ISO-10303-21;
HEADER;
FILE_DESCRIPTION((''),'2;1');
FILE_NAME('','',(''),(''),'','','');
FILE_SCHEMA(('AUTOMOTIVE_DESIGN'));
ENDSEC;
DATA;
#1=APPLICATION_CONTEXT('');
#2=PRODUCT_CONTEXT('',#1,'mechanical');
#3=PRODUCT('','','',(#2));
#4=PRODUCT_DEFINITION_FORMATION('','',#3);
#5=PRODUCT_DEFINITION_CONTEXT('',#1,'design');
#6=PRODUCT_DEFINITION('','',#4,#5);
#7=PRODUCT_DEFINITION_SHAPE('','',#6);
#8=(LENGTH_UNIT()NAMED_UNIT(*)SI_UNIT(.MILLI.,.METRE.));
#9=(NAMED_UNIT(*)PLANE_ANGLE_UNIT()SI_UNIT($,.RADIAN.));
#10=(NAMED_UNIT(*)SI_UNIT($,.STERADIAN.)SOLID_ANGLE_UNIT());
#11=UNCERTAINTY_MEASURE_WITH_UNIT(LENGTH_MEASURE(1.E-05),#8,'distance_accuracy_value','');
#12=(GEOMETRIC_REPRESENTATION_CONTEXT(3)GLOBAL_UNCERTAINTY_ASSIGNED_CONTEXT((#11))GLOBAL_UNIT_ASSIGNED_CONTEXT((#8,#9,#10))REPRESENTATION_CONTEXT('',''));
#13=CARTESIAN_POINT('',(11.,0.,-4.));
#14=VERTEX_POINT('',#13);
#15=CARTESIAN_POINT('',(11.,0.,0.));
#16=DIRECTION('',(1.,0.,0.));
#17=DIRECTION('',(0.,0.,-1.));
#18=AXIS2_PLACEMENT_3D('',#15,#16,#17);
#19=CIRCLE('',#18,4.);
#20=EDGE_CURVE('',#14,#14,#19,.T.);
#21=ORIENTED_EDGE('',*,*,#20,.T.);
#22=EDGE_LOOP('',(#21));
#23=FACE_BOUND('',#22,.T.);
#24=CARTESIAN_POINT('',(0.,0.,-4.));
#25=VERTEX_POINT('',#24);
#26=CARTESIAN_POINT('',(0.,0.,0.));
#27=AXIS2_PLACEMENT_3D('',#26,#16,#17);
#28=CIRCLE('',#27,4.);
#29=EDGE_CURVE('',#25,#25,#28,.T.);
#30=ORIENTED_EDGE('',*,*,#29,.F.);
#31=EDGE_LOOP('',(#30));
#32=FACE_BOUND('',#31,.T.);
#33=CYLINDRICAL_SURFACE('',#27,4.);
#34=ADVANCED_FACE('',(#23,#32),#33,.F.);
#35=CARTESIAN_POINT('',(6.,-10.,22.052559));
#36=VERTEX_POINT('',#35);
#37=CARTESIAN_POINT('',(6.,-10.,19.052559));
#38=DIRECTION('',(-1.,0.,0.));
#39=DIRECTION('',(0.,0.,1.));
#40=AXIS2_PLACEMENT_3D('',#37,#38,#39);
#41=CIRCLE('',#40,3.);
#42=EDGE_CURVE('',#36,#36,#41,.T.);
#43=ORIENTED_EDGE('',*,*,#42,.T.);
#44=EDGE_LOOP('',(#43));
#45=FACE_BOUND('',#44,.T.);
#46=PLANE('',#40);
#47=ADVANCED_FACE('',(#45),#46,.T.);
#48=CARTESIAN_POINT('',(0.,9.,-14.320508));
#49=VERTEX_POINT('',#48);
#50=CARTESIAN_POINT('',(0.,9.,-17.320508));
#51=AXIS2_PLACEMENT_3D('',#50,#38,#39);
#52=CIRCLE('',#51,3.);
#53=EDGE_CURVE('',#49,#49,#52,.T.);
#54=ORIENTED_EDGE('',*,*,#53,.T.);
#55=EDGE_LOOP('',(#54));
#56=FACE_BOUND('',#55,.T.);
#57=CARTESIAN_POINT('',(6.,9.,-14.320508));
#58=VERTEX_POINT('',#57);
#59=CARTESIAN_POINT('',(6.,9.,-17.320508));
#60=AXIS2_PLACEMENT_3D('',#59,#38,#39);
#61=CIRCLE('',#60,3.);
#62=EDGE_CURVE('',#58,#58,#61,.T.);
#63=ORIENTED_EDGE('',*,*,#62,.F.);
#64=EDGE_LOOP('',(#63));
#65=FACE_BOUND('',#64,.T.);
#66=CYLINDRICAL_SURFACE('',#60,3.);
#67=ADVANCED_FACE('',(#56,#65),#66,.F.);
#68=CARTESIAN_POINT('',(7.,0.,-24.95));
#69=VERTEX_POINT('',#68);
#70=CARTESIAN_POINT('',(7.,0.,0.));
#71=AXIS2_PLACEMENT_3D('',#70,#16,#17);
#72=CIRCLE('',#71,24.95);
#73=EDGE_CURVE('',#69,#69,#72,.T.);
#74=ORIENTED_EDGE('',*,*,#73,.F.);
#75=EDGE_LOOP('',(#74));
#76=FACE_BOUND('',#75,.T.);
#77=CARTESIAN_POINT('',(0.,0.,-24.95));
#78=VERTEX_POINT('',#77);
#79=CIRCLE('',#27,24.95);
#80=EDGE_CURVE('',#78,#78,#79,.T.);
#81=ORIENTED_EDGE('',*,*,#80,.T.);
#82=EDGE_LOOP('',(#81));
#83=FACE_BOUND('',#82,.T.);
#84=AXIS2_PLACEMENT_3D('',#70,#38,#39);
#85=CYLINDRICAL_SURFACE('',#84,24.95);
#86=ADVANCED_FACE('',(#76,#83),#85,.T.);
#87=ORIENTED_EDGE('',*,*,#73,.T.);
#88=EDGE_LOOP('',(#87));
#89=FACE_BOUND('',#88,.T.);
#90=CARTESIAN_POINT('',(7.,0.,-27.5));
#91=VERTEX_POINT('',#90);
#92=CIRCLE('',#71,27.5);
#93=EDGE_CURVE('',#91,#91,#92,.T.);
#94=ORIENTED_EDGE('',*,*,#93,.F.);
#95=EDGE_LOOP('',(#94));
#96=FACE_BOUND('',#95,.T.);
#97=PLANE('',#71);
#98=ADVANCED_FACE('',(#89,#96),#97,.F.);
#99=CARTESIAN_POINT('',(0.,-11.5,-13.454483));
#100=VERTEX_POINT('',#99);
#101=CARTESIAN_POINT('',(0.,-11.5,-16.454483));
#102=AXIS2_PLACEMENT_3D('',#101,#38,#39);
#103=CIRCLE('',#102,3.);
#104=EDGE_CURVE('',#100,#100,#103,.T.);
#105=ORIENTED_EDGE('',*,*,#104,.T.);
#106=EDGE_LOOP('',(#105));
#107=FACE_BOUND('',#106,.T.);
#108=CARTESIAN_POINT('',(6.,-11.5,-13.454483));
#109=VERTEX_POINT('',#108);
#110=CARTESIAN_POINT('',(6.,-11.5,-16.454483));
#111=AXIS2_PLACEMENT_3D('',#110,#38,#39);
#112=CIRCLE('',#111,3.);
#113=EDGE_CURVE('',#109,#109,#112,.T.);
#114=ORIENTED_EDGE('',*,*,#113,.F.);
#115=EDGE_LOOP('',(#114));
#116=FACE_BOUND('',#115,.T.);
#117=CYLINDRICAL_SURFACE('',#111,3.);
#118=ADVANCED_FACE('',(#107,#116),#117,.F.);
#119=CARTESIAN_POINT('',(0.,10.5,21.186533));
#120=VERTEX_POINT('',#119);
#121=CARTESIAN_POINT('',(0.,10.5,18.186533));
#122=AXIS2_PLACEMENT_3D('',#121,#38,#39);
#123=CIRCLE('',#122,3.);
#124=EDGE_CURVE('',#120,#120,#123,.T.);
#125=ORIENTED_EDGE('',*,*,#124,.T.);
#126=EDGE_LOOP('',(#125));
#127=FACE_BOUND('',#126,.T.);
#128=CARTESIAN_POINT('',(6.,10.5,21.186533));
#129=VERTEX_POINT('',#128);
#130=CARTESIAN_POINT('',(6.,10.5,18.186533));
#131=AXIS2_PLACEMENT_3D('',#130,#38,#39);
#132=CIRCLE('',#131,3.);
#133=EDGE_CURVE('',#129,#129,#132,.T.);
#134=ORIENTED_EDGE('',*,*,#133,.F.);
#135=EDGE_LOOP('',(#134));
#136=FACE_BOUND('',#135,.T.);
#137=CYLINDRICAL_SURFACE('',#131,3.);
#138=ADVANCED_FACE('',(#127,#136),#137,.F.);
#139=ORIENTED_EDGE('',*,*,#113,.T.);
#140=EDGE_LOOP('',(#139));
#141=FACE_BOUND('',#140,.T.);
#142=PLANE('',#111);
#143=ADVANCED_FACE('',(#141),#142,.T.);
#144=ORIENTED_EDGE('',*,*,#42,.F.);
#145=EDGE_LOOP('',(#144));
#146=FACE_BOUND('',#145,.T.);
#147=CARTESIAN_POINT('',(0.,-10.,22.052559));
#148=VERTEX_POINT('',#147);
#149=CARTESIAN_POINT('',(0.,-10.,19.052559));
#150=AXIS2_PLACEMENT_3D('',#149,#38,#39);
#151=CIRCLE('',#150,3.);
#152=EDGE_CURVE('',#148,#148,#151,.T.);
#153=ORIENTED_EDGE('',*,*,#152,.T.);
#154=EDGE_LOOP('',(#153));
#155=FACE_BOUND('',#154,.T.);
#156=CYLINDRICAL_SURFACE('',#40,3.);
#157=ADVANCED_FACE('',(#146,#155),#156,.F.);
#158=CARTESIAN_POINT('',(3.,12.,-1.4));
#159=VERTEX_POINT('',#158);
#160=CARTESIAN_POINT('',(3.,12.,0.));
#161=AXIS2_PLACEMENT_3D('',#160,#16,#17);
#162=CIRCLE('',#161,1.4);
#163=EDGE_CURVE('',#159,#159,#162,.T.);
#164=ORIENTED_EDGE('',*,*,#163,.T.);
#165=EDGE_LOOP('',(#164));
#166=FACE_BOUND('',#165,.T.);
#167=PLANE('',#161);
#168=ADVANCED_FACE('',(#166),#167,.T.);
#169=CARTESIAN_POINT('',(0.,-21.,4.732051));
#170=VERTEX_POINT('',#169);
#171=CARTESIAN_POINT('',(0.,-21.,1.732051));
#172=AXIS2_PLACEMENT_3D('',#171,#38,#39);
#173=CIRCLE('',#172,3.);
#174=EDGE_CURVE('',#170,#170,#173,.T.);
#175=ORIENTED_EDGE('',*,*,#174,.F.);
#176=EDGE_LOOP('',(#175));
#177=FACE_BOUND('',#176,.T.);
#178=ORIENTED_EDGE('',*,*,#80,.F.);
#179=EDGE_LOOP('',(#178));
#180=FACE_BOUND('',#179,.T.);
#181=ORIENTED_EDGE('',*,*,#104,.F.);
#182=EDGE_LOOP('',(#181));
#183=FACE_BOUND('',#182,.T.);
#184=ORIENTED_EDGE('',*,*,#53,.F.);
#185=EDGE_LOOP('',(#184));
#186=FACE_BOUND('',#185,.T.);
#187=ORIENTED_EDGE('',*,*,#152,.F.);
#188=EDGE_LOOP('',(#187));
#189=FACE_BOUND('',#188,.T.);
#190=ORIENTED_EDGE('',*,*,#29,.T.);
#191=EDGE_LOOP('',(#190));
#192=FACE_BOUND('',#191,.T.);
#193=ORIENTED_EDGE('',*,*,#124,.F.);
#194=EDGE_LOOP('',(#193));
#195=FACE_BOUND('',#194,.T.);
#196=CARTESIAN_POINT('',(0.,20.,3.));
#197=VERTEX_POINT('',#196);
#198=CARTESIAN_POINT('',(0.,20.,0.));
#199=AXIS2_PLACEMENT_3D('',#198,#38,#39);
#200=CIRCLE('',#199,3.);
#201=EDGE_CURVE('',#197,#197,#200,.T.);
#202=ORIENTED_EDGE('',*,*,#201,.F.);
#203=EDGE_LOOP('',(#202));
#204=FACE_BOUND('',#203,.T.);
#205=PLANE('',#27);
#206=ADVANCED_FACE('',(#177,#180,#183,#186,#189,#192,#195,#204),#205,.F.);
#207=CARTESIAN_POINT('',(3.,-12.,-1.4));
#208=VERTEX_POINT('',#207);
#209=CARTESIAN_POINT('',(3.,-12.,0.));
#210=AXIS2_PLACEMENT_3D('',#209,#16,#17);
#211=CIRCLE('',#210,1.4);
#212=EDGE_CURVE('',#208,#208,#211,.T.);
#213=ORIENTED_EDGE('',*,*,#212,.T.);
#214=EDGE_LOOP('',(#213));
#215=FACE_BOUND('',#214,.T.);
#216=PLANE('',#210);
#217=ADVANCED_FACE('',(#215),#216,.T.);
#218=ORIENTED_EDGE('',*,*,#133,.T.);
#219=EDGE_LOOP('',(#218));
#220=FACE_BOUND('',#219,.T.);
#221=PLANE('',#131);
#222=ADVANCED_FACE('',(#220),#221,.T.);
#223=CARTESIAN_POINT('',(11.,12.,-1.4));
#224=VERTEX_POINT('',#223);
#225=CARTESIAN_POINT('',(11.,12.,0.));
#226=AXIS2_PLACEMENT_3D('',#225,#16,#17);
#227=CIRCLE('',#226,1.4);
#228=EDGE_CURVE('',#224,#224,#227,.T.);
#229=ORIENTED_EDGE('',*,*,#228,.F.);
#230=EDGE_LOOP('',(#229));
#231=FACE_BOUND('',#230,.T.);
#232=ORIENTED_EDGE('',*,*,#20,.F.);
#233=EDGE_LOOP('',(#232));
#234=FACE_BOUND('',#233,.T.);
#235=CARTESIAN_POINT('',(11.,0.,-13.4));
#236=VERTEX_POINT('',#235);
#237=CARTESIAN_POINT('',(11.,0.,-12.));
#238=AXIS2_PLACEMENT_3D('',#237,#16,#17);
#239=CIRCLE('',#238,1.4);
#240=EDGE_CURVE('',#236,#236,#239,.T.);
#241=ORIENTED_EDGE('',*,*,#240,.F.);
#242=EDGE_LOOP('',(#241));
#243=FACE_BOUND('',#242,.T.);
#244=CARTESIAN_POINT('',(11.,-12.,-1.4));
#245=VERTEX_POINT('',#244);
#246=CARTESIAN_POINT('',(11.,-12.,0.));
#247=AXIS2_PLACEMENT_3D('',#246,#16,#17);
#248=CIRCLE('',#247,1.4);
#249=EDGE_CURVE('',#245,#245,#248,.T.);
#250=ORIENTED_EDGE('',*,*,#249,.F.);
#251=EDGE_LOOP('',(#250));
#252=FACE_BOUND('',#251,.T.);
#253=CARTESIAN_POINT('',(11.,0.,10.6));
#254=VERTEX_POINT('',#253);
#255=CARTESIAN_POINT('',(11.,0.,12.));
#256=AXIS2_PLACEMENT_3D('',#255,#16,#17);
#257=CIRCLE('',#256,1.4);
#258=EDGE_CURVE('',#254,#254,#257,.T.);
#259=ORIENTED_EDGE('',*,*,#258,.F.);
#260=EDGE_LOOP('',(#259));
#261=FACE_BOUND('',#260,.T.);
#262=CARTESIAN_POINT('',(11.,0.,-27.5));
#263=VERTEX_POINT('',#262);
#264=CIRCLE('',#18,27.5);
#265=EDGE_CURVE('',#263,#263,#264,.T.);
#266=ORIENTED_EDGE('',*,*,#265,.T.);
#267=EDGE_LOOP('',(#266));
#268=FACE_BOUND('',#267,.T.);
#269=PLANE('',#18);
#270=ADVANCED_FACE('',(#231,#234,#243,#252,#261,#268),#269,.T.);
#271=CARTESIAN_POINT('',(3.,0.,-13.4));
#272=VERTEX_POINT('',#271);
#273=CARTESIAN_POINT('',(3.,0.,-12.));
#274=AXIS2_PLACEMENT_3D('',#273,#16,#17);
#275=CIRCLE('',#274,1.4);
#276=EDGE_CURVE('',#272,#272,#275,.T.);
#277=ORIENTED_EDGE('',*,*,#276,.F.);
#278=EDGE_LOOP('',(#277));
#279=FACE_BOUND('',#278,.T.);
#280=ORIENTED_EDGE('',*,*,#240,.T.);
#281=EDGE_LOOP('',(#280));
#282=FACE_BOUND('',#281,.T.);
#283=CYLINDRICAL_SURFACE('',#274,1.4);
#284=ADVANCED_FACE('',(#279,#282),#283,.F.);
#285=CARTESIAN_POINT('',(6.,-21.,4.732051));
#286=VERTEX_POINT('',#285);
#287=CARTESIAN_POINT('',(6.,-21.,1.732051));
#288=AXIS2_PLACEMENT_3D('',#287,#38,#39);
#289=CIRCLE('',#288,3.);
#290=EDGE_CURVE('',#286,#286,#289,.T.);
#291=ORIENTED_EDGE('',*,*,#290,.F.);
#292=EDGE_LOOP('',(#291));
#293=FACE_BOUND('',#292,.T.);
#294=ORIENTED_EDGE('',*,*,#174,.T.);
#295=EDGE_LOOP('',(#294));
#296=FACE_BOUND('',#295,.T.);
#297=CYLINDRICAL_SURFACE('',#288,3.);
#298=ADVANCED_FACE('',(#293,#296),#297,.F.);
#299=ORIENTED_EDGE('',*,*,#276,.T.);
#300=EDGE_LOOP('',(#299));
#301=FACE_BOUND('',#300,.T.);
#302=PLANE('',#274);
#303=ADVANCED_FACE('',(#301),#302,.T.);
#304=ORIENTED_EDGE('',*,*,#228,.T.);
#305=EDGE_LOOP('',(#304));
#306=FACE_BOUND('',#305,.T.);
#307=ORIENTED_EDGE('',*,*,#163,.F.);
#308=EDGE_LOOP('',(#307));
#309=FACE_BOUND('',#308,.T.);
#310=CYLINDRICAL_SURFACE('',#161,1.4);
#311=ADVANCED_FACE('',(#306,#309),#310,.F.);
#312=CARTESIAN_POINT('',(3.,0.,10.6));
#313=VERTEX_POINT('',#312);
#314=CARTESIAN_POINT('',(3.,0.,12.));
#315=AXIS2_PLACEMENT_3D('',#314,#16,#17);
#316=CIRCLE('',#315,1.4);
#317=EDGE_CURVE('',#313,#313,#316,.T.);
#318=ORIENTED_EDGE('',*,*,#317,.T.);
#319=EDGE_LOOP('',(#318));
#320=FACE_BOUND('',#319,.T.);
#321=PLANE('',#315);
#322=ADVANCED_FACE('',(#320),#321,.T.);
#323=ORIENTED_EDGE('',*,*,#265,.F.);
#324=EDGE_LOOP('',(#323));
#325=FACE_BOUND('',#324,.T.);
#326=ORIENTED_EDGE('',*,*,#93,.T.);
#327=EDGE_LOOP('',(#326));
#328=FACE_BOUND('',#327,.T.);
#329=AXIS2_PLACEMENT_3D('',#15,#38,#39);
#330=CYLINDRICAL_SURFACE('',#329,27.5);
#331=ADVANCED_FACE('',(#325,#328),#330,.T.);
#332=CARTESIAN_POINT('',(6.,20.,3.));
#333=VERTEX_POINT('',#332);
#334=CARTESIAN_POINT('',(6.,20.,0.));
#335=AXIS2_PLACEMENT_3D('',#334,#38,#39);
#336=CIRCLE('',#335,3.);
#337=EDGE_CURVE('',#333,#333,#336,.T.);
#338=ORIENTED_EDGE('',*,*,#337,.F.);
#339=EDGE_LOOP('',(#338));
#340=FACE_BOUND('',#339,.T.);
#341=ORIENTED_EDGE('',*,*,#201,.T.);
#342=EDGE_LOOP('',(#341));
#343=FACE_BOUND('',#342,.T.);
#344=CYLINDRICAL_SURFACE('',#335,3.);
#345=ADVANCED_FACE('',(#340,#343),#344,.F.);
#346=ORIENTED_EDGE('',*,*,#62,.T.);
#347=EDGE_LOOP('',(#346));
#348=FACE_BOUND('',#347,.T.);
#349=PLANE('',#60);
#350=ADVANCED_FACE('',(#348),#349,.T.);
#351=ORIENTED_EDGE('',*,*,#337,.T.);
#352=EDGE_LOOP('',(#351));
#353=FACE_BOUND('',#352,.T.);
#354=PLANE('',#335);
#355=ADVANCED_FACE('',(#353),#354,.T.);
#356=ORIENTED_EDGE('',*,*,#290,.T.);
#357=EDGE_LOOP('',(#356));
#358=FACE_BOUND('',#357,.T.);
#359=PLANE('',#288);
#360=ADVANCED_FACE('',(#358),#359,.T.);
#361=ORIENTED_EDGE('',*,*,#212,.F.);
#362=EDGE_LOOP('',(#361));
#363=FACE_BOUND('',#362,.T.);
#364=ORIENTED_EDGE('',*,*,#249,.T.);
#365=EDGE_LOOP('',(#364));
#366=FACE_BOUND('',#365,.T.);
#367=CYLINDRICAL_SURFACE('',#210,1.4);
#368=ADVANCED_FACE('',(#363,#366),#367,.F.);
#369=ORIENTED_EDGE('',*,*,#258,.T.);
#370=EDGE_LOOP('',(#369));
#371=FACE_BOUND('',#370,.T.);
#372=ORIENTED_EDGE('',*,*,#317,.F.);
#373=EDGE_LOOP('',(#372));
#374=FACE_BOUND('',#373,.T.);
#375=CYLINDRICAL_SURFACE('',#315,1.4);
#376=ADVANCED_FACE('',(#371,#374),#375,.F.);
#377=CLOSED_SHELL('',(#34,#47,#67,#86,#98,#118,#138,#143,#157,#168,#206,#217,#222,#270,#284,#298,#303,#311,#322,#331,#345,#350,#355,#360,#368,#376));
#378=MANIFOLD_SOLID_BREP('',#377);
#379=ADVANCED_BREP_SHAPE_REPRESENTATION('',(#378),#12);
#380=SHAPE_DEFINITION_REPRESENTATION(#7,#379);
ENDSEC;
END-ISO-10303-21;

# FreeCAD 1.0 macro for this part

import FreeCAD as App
import Part
import Sketcher
Q = App.Units.Quantity

doc = App.newDocument("Part")
body = doc.addObject("PartDesign::Body", "Body")

# Sketch on YZ plane
sketch1 = doc.addObject("Sketcher::SketchObject", "Sketch")
body.addObject(sketch1)
sketch1.AttachmentSupport = (doc.YZ_Plane, [""])
sketch1.MapMode = "FlatFace"
sketch1.addGeometry(Part.Circle(App.Vector(0, 0, 0), App.Vector(0, 0, 1), 25), False)
sketch1.addConstraint(Sketcher.Constraint("Coincident", 0, 3, -1, 1))
sketch1.addConstraint(Sketcher.Constraint("Diameter", 0, Q("49.9 mm")))
pad1 = doc.addObject("PartDesign::Pad", "Pad")
body.addObject(pad1)
pad1.Profile = sketch1
pad1.Length = 7

# Sketch on YZ plane
sketch2 = doc.addObject("Sketcher::SketchObject", "Sketch001")
body.addObject(sketch2)
sketch2.AttachmentSupport = (doc.YZ_Plane, [""])
sketch2.MapMode = "FlatFace"
sketch2.AttachmentOffset = App.Placement(App.Vector(0, 0, 7), App.Rotation())
sketch2.addGeometry(Part.Circle(App.Vector(0, 0, 0), App.Vector(0, 0, 1), 28), False)
sketch2.addConstraint(Sketcher.Constraint("Coincident", 0, 3, -1, 1))
sketch2.addConstraint(Sketcher.Constraint("Diameter", 0, Q("55 mm")))
pad2 = doc.addObject("PartDesign::Pad", "Pad001")
body.addObject(pad2)
pad2.Profile = sketch2
pad2.Length = 4

# Sketch on YZ plane
sketch3 = doc.addObject("Sketcher::SketchObject", "Sketch002")
body.addObject(sketch3)
sketch3.AttachmentSupport = (doc.YZ_Plane, [""])
sketch3.MapMode = "FlatFace"
sketch3.AttachmentOffset = App.Placement(App.Vector(0, 0, 11), App.Rotation())
sketch3.addGeometry(Part.Circle(App.Vector(0, 0, 0), App.Vector(0, 0, 1), 4), False)
sketch3.addConstraint(Sketcher.Constraint("Coincident", 0, 3, -1, 1))
sketch3.addConstraint(Sketcher.Constraint("Diameter", 0, Q("8 mm")))
pocket1 = doc.addObject("PartDesign::Pocket", "Pocket")
body.addObject(pocket1)
pocket1.Profile = sketch3
pocket1.Type = "ThroughAll"

# Sketch on YZ plane
sketch4 = doc.addObject("Sketcher::SketchObject", "Sketch003")
body.addObject(sketch4)
sketch4.AttachmentSupport = (doc.YZ_Plane, [""])
sketch4.MapMode = "FlatFace"
sketch4.AttachmentOffset = App.Placement(App.Vector(0, 0, 11), App.Rotation())
sketch4.addGeometry(Part.Circle(App.Vector(0, 12, 0), App.Vector(0, 0, 1), 1.4), False)
sketch4.addGeometry(Part.Circle(App.Vector(12, 0, 0), App.Vector(0, 0, 1), 1.4), False)
sketch4.addGeometry(Part.Circle(App.Vector(0, -12, 0), App.Vector(0, 0, 1), 1.4), False)
sketch4.addGeometry(Part.Circle(App.Vector(-12, 0, 0), App.Vector(0, 0, 1), 1.4), False)
sketch4.addConstraint(Sketcher.Constraint("Equal", 0, 1))
sketch4.addConstraint(Sketcher.Constraint("Equal", 1, 2))
sketch4.addConstraint(Sketcher.Constraint("Equal", 2, 3))
sketch4.addConstraint(Sketcher.Constraint("Symmetric", 0, 3, 2, 3, -1, 1))
sketch4.addConstraint(Sketcher.Constraint("Symmetric", 1, 3, 3, 3, -1, 1))
sketch4.addConstraint(Sketcher.Constraint("PointOnObject", 0, 3, -2))
sketch4.addConstraint(Sketcher.Constraint("PointOnObject", 1, 3, -1))
sketch4.addConstraint(Sketcher.Constraint("Diameter", 0, Q("2.8 mm")))
sketch4.addConstraint(Sketcher.Constraint("DistanceY", -1, 1, 0, 3, Q("12 mm")))
sketch4.addConstraint(Sketcher.Constraint("DistanceX", -1, 1, 1, 3, Q("12 mm")))
pocket2 = doc.addObject("PartDesign::Pocket", "Pocket001")
body.addObject(pocket2)
pocket2.Profile = sketch4
pocket2.Length = 8

# Sketch on YZ plane
sketch5 = doc.addObject("Sketcher::SketchObject", "Sketch004")
body.addObject(sketch5)
sketch5.AttachmentSupport = (doc.YZ_Plane, [""])
sketch5.MapMode = "FlatFace"
sketch5.addGeometry(Part.Circle(App.Vector(20, 0, 0), App.Vector(0, 0, 1), 3), False)
sketch5.addGeometry(Part.Circle(App.Vector(10.5, 18.2, 0), App.Vector(0, 0, 1), 3), False)
sketch5.addGeometry(Part.Circle(App.Vector(-10, 19.1, 0), App.Vector(0, 0, 1), 3), False)
sketch5.addGeometry(Part.Circle(App.Vector(-21, 1.7, 0), App.Vector(0, 0, 1), 3), False)
sketch5.addGeometry(Part.Circle(App.Vector(-11.5, -16.5, 0), App.Vector(0, 0, 1), 3), False)
sketch5.addGeometry(Part.Circle(App.Vector(9, -17.3, 0), App.Vector(0, 0, 1), 3), False)
sketch5.addConstraint(Sketcher.Constraint("Equal", 0, 1))
sketch5.addConstraint(Sketcher.Constraint("Equal", 1, 2))
sketch5.addConstraint(Sketcher.Constraint("Equal", 2, 3))
sketch5.addConstraint(Sketcher.Constraint("Equal", 3, 4))
sketch5.addConstraint(Sketcher.Constraint("Equal", 4, 5))
sketch5.addConstraint(Sketcher.Constraint("PointOnObject", 0, 3, -1))
sketch5.addConstraint(Sketcher.Constraint("Diameter", 0, Q("6 mm")))
sketch5.addConstraint(Sketcher.Constraint("DistanceX", -1, 1, 0, 3, Q("20 mm")))
sketch5.addConstraint(Sketcher.Constraint("DistanceX", 2, 3, -1, 1, Q("10 mm")))
sketch5.addConstraint(Sketcher.Constraint("DistanceX", 3, 3, -1, 1, Q("21 mm")))
sketch5.addConstraint(Sketcher.Constraint("DistanceX", -1, 1, 5, 3, Q("9 mm")))
sketch5.addConstraint(Sketcher.Constraint("DistanceX", 4, 3, 1, 3, Q("22 mm")))
sketch5.addConstraint(Sketcher.Constraint("DistanceX", -1, 1, 1, 3, Q("10.5 mm")))
sketch5.addConstraint(Sketcher.Constraint("DistanceY", -1, 1, 2, 3, Q("19.052559 mm")))
sketch5.addConstraint(Sketcher.Constraint("DistanceY", -1, 1, 3, 3, Q("1.732051 mm")))
sketch5.addConstraint(Sketcher.Constraint("DistanceY", 5, 3, -1, 1, Q("17.320508 mm")))
sketch5.addConstraint(Sketcher.Constraint("DistanceY", 4, 3, 2, 3, Q("35.507042 mm")))
sketch5.addConstraint(Sketcher.Constraint("DistanceY", 5, 3, 1, 3, Q("35.507042 mm")))
pocket3 = doc.addObject("PartDesign::Pocket", "Pocket002")
body.addObject(pocket3)
pocket3.Profile = sketch5
pocket3.Length = 6
pocket3.Reversed = True

doc.recompute()
